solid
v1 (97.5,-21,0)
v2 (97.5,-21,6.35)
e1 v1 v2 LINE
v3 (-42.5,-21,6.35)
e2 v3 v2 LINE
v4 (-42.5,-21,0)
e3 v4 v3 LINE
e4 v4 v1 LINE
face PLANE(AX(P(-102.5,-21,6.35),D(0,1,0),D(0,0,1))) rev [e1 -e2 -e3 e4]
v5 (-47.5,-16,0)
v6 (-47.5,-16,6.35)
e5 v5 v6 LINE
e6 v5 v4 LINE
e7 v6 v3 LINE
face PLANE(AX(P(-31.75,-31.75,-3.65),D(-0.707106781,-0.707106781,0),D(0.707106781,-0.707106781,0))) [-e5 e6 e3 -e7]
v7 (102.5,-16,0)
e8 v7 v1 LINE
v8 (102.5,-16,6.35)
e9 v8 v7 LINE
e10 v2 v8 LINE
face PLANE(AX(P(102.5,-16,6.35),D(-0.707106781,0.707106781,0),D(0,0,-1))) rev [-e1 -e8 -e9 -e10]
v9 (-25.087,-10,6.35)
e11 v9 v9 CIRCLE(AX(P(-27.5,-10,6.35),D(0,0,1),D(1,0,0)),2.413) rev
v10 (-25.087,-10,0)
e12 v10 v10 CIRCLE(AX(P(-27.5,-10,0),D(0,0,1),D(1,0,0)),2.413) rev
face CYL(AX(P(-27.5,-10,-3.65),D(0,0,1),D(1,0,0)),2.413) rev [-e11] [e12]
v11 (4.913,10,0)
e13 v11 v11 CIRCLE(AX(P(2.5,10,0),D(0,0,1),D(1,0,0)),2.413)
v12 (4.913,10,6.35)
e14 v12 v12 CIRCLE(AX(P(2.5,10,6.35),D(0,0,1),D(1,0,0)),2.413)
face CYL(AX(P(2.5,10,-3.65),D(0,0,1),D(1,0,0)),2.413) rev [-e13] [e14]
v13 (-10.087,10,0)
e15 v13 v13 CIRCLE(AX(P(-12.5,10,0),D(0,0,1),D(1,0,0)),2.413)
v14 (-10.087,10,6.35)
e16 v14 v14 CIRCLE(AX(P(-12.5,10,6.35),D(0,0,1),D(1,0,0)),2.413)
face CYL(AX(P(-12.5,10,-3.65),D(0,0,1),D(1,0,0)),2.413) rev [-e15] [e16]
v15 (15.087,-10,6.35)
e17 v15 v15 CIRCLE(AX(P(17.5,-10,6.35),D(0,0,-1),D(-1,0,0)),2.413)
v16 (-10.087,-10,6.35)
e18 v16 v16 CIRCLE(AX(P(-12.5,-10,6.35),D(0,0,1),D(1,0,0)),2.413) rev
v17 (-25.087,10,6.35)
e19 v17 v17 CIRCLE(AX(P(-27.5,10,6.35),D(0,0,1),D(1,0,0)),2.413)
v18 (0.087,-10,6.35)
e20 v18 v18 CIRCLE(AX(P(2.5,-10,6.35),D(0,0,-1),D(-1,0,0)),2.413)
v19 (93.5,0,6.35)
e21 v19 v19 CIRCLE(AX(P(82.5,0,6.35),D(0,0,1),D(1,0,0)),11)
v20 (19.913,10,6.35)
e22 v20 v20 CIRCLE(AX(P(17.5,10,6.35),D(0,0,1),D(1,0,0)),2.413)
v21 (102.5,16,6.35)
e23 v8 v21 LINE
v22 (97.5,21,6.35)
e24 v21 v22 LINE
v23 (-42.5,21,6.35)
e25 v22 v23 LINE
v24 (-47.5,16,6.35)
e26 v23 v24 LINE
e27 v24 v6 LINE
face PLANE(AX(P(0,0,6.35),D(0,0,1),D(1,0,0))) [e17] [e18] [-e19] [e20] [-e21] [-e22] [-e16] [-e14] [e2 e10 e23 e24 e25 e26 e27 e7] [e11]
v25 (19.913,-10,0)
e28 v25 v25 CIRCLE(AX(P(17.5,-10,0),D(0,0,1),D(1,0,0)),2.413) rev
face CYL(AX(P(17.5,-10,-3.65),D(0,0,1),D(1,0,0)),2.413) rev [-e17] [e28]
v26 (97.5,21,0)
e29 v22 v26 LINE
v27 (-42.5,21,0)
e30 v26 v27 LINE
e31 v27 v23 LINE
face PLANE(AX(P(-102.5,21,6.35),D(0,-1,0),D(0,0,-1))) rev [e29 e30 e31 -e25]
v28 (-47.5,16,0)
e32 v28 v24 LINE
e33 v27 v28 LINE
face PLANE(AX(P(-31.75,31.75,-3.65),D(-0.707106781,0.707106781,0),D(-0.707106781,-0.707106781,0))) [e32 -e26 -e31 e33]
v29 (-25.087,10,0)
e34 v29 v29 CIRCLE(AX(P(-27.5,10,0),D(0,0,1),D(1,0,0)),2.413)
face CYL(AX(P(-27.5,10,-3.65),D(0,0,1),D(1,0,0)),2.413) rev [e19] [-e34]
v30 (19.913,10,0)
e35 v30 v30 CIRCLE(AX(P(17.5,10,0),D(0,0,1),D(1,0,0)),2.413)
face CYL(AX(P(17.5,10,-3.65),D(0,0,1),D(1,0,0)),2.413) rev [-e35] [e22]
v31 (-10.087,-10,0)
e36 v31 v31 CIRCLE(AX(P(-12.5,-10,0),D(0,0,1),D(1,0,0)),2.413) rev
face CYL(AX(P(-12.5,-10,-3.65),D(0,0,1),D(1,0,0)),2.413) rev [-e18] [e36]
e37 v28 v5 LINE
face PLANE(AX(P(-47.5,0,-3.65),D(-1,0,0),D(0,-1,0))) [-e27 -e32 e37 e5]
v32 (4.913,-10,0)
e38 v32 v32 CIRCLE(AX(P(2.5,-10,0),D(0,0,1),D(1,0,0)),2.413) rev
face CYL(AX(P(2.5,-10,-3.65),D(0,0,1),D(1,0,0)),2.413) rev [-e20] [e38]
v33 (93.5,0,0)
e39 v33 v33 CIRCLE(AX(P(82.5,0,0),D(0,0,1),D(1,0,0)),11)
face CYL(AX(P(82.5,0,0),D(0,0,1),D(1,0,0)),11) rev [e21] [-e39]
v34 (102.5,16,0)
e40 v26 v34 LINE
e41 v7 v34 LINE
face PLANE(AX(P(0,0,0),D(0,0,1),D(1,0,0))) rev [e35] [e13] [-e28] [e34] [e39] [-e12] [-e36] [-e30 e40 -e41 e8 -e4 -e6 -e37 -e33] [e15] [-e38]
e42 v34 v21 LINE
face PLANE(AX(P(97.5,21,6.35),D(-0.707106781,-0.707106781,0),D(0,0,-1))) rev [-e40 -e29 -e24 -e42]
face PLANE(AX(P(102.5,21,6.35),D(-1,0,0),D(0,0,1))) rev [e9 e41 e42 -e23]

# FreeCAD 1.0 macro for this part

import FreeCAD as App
import Part
import Sketcher
from FreeCAD import Vector
Q = App.Units.Quantity


def edges_at(feature, points):
    """Names of the edges that pass closest to the given points."""
    edges = feature.Shape.Edges
    near = lambda p: min(range(len(edges)), key=lambda i: edges[i].distToShape(Part.Vertex(*p))[0])
    return sorted({f"Edge{near(p) + 1}" for p in points})


def add_polygon(sketch, points):
    """Adds a closed chain of lines whose ends are joined by coincident constraints."""
    first, n = sketch.GeometryCount, len(points)
    for a, b in zip(points, points[1:] + points[:1]):
        sketch.addGeometry(Part.LineSegment(App.Vector(*a, 0), App.Vector(*b, 0)), False)
    for i in range(n):
        sketch.addConstraint(Sketcher.Constraint("Coincident", first + i, 2, first + (i + 1) % n, 1))

doc = App.newDocument("Part")
body = doc.addObject("PartDesign::Body", "Body")

# Sketch on XY plane
sketch1 = body.newObject("Sketcher::SketchObject", "Sketch")
sketch1.AttachmentSupport = (doc.getObject("XY_Plane"), [""])
sketch1.MapMode = "FlatFace"
add_polygon(sketch1, [(-102.5, 21), (-102.5, -21), (102.5, -21), (102.5, 21)])  # lines 0-3
sketch1.addConstraint([
    Sketcher.Constraint("Vertical", 0),
    Sketcher.Constraint("Horizontal", 1),
    Sketcher.Constraint("Vertical", 2),
    Sketcher.Constraint("Horizontal", 3),
    Sketcher.Constraint("Symmetric", 0, 2, 2, 2, -1, 1),
    Sketcher.Constraint("DistanceX", 1, 1, 1, 2, Q("205 mm")),
    Sketcher.Constraint("DistanceY", 0, 2, 0, 1, Q("42 mm")),
])
pad1 = body.newObject("PartDesign::Pad", "Pad")
pad1.Profile = sketch1
pad1.Length = 6.35

# Sketch on XY plane
sketch2 = body.newObject("Sketcher::SketchObject", "Sketch001")
sketch2.AttachmentSupport = (doc.getObject("XY_Plane"), [""])
sketch2.MapMode = "FlatFace"
sketch2.AttachmentOffset = App.Placement(Vector(0, 0, 6.35), App.Rotation())
sketch2.addGeometry(Part.Circle(Vector(-78.5, 0, 0), Vector(0, 0, 1), 11), False)
sketch2.addConstraint([
    Sketcher.Constraint("PointOnObject", 0, 3, -1),
    Sketcher.Constraint("Diameter", 0, Q("22 mm")),
    Sketcher.Constraint("DistanceX", 0, 3, -1, 1, Q("78.5 mm")),
])
pocket1 = body.newObject("PartDesign::Pocket", "Pocket")
pocket1.Profile = sketch2
pocket1.Type = "ThroughAll"
doc.recompute()

chamfer = body.newObject("PartDesign::Chamfer", "Chamfer")
chamfer.Base = (pocket1, edges_at(pocket1, [
    (102.5, -21, 3.175),
    (-102.5, -21, 3.175),
    (-102.5, 21, 3.175),
    (102.5, 21, 3.175),
]))
chamfer.Size = 5

# Sketch on XY plane
sketch3 = body.newObject("Sketcher::SketchObject", "Sketch002")
sketch3.AttachmentSupport = (doc.getObject("XY_Plane"), [""])
sketch3.MapMode = "FlatFace"
sketch3.AttachmentOffset = App.Placement(Vector(0, 0, 6.35), App.Rotation())
sketch3.addGeometry(Part.Circle(Vector(82.5, 0, 0), Vector(0, 0, 1), 11), False)
sketch3.addConstraint([
    Sketcher.Constraint("PointOnObject", 0, 3, -1),
    Sketcher.Constraint("Diameter", 0, Q("22 mm")),
    Sketcher.Constraint("DistanceX", -1, 1, 0, 3, Q("82.5 mm")),
])
pocket2 = body.newObject("PartDesign::Pocket", "Pocket001")
pocket2.Profile = sketch3
pocket2.Type = "ThroughAll"

# Sketch on XY plane
sketch4 = body.newObject("Sketcher::SketchObject", "Sketch003")
sketch4.AttachmentSupport = (doc.getObject("XY_Plane"), [""])
sketch4.MapMode = "FlatFace"
sketch4.AttachmentOffset = App.Placement(Vector(0, 0, 6.35), App.Rotation())
add_polygon(sketch4, [(-47.5, -16), (-47.5, 16), (-42.5, 21), (-97.5, 21), (-102.5, 16), (-102.5, -16), (-97.5, -21), (-42.5, -21)])  # lines 0-7
sketch4.addGeometry(Part.Circle(Vector(-78.5, 0, 0), Vector(0, 0, 1), 11), False)  # 8
sketch4.addGeometry(Part.Circle(Vector(-27.5, 10, 0), Vector(0, 0, 1), 2.413), False)  # 9
sketch4.addGeometry(Part.Circle(Vector(-27.5, -10, 0), Vector(0, 0, 1), 2.413), False)  # 10
sketch4.addGeometry(Part.Circle(Vector(-12.5, -10, 0), Vector(0, 0, 1), 2.413), False)  # 11
sketch4.addGeometry(Part.Circle(Vector(-12.5, 10, 0), Vector(0, 0, 1), 2.413), False)  # 12
sketch4.addGeometry(Part.Circle(Vector(17.5, 10, 0), Vector(0, 0, 1), 2.413), False)  # 13
sketch4.addGeometry(Part.Circle(Vector(2.5, -10, 0), Vector(0, 0, 1), 2.413), False)  # 14
sketch4.addGeometry(Part.Circle(Vector(17.5, -10, 0), Vector(0, 0, 1), 2.413), False)  # 15
sketch4.addGeometry(Part.Circle(Vector(2.5, 10, 0), Vector(0, 0, 1), 2.413), False)  # 16
sketch4.addConstraint([
    Sketcher.Constraint("Vertical", 0),
    Sketcher.Constraint("Horizontal", 2),
    Sketcher.Constraint("Vertical", 4),
    Sketcher.Constraint("Horizontal", 6),
    Sketcher.Constraint("Equal", 9, 10),
    Sketcher.Constraint("Equal", 10, 11),
    Sketcher.Constraint("Equal", 11, 12),
    Sketcher.Constraint("Equal", 12, 13),
    Sketcher.Constraint("Equal", 13, 14),
    Sketcher.Constraint("Equal", 14, 15),
    Sketcher.Constraint("Equal", 15, 16),
    Sketcher.Constraint("Symmetric", 9, 3, 10, 3, -1),
    Sketcher.Constraint("Symmetric", 11, 3, 12, 3, -1),
    Sketcher.Constraint("Symmetric", 13, 3, 15, 3, -1),
    Sketcher.Constraint("Symmetric", 14, 3, 16, 3, -1),
    Sketcher.Constraint("Symmetric", 2, 2, 5, 2, -1),
    Sketcher.Constraint("PointOnObject", 8, 3, -1),
    Sketcher.Constraint("Parallel", 1, 3),
    Sketcher.Constraint("Perpendicular", 3, 5),
    Sketcher.Constraint("Parallel", 5, 7),
    Sketcher.Constraint("Horizontal", 10, 3, 11, 3),
    Sketcher.Constraint("Horizontal", 12, 3, 13, 3),
    Sketcher.Constraint("Horizontal", 11, 3, 14, 3),
    Sketcher.Constraint("Horizontal", 0, 2, 3, 2),
    Sketcher.Constraint("Horizontal", 4, 2, 7, 2),
    Sketcher.Constraint("Equal", 3, 5),
    Sketcher.Constraint("Diameter", 8, Q("22 mm")),
    Sketcher.Constraint("DistanceX", 2, 2, 2, 1, Q("55 mm")),
    Sketcher.Constraint("DistanceY", 0, 1, 0, 2, Q("32 mm")),
    Sketcher.Constraint("Diameter", 9, Q("4.826 mm")),
    Sketcher.Constraint("DistanceY", -1, 1, 9, 3, Q("10 mm")),
    Sketcher.Constraint("DistanceY", -1, 1, 1, 2, Q("21 mm")),
    Sketcher.Constraint("DistanceX", 8, 3, 9, 3, Q("51 mm")),
    Sketcher.Constraint("DistanceX", 10, 3, 11, 3, Q("15 mm")),
    Sketcher.Constraint("DistanceX", 12, 3, 13, 3, Q("30 mm")),
    Sketcher.Constraint("DistanceX", 11, 3, 14, 3, Q("15 mm")),
    Sketcher.Constraint("DistanceX", 0, 2, 9, 3, Q("20 mm")),
    Sketcher.Constraint("DistanceX", 8, 3, -1, 1, Q("78.5 mm")),
])
pocket3 = body.newObject("PartDesign::Pocket", "Pocket002")
pocket3.Profile = sketch4
pocket3.Length = 10

doc.recompute()
